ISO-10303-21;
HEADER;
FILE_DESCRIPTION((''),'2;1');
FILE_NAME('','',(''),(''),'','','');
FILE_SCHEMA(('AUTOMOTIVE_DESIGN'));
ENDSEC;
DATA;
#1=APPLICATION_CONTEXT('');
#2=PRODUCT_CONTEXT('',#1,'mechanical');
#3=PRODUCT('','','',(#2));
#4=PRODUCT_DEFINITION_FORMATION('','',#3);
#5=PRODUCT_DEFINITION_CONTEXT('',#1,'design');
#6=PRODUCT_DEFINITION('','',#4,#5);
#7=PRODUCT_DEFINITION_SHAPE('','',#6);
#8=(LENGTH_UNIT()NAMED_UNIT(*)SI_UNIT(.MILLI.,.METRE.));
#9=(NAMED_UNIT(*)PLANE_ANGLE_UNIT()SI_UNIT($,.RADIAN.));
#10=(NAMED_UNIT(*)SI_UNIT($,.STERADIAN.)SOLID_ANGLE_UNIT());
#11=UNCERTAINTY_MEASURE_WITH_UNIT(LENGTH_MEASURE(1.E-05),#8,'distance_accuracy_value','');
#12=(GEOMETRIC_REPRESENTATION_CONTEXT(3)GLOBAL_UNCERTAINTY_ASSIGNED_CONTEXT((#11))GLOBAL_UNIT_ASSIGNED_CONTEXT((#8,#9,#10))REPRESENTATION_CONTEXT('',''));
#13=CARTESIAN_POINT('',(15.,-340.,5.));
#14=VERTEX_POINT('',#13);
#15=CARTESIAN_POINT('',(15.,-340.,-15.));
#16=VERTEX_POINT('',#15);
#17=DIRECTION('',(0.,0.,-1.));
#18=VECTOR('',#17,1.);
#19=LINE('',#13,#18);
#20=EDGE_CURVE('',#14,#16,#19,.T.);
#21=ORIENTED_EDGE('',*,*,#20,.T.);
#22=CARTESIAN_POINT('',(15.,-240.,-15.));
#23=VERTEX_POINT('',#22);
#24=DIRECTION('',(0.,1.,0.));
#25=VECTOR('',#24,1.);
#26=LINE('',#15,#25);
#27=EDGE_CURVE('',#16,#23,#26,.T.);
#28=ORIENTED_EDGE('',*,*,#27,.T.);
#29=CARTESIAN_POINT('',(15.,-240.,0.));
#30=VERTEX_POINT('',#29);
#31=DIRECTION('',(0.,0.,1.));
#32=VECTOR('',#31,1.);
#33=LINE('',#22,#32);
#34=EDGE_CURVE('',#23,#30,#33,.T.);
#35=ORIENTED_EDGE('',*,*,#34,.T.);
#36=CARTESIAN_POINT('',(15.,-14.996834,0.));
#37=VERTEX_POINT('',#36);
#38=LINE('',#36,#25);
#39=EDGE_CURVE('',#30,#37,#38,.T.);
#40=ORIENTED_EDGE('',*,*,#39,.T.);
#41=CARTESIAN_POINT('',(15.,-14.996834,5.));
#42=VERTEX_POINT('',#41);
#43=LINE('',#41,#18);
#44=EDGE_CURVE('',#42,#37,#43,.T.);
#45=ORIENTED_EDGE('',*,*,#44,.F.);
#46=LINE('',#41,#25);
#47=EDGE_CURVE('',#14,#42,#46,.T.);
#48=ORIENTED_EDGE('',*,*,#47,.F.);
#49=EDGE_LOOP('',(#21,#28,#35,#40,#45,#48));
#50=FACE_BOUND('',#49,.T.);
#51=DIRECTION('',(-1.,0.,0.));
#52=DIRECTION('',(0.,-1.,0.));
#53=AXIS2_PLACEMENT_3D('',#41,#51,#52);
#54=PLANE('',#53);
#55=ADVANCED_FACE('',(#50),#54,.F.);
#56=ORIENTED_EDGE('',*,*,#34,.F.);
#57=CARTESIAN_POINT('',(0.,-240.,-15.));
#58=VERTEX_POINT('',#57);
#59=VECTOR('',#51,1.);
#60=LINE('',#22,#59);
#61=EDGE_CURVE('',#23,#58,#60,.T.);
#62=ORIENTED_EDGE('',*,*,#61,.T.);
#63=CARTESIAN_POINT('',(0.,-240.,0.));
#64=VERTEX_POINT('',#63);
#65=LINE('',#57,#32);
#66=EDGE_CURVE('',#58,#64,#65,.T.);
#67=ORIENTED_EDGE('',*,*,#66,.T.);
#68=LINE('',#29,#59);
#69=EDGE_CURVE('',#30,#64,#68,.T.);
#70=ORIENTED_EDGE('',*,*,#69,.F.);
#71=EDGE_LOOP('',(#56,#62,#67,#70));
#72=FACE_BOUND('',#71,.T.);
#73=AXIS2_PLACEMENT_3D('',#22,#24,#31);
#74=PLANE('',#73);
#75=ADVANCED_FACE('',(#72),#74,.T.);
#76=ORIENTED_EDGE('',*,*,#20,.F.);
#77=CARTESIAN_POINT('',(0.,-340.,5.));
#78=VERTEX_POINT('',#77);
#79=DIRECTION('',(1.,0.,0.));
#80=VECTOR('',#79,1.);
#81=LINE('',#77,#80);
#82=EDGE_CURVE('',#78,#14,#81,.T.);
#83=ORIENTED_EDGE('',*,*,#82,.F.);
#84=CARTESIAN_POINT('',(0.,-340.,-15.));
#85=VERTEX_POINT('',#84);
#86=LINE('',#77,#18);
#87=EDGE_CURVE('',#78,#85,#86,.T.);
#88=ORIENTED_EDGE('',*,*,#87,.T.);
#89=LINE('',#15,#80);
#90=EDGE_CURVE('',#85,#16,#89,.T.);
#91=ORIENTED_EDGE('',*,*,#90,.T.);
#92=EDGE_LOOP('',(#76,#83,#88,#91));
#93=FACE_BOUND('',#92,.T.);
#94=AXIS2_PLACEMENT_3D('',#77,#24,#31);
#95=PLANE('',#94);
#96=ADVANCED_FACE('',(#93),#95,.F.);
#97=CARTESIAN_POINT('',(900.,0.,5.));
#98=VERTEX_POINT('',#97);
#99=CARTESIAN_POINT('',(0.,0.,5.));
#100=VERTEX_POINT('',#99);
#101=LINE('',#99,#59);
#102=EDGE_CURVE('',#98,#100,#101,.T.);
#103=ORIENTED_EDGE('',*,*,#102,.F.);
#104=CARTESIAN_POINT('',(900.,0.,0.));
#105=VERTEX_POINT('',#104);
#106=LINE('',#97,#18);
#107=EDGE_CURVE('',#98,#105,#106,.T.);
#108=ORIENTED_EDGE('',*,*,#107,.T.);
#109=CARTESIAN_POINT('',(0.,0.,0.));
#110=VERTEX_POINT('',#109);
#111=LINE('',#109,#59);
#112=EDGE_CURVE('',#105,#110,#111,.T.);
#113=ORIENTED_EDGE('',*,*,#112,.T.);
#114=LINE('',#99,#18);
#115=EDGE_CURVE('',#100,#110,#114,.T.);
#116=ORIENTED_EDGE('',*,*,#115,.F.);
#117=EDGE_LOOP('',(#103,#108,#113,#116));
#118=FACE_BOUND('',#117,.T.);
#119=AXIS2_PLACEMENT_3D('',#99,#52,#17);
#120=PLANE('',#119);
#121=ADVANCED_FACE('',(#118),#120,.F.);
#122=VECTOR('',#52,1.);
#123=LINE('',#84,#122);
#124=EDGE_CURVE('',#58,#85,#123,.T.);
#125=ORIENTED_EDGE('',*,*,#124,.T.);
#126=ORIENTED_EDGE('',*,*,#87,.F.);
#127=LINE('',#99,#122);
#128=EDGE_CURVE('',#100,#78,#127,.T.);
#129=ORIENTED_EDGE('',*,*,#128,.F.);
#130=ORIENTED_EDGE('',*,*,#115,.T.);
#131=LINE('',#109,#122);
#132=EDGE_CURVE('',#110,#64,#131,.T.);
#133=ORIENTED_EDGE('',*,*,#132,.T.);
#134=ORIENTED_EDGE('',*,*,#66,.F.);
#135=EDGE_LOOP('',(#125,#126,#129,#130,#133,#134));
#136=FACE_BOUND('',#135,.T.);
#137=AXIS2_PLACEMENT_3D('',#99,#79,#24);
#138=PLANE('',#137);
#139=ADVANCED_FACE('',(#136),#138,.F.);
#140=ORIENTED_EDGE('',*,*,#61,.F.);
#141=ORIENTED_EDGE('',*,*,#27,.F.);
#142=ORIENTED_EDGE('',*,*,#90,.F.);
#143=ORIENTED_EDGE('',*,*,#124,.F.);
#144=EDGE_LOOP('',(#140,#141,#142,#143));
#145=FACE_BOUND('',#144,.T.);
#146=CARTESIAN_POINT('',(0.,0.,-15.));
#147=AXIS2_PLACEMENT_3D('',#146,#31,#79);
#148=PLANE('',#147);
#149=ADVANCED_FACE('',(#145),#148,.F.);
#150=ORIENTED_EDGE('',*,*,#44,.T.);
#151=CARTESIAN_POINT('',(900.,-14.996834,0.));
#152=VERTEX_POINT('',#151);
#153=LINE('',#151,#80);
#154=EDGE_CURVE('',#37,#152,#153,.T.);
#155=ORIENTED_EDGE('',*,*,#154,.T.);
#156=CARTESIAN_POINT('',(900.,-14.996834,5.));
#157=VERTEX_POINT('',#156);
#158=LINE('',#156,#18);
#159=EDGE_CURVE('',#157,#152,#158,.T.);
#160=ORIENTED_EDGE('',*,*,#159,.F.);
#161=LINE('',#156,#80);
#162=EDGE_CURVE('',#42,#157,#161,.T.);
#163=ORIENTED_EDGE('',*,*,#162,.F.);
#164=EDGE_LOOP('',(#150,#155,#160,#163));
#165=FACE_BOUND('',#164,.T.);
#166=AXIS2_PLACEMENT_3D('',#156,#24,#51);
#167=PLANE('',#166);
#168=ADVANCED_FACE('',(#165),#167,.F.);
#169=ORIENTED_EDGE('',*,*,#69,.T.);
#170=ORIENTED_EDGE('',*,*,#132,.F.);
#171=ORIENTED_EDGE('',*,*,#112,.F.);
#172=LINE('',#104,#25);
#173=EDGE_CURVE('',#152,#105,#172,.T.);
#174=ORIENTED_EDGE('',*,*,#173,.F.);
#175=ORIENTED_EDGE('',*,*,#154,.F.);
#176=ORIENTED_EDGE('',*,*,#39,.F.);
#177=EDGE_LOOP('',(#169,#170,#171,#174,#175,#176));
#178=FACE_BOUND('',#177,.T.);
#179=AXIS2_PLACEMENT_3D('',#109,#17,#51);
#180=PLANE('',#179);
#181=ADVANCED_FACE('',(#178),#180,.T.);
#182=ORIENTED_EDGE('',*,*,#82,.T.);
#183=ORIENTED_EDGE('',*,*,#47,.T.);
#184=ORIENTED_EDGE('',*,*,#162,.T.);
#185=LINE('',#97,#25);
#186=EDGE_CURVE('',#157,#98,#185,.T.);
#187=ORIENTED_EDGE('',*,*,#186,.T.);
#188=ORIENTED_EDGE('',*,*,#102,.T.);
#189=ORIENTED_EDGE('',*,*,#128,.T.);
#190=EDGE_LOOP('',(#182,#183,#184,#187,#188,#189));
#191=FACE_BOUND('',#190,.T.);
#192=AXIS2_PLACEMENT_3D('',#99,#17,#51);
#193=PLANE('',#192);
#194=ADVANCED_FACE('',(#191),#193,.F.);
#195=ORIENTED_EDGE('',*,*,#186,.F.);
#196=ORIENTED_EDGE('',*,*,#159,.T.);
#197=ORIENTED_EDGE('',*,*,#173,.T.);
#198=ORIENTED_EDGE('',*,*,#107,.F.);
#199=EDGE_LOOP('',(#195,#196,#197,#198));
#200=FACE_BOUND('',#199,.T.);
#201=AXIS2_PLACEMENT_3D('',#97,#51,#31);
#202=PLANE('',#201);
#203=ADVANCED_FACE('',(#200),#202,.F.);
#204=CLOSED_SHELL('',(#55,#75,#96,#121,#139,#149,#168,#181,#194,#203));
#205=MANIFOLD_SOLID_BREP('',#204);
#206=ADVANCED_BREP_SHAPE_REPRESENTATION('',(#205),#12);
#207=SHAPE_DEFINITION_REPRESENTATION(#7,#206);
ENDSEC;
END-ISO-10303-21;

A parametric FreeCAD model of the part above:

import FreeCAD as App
import Part
import Sketcher
from FreeCAD import Vector
Q = App.Units.Quantity


def add_polygon(sketch, points):
    """Adds a closed chain of lines whose ends are joined by coincident constraints."""
    first, n = sketch.GeometryCount, len(points)
    for a, b in zip(points, points[1:] + points[:1]):
        sketch.addGeometry(Part.LineSegment(App.Vector(*a, 0), App.Vector(*b, 0)), False)
    for i in range(n):
        sketch.addConstraint(Sketcher.Constraint("Coincident", first + i, 2, first + (i + 1) % n, 1))

doc = App.newDocument("Part")
body = doc.addObject("PartDesign::Body", "Body")

# Sketch on XY plane
sketch1 = body.newObject("Sketcher::SketchObject", "Sketch")
sketch1.AttachmentSupport = (doc.getObject("XY_Plane"), [""])
sketch1.MapMode = "FlatFace"
add_polygon(sketch1, [(0, 0), (0, -340), (15, -340), (15, -15), (900, -15), (900, 0)])  # lines 0-5
sketch1.addConstraint([
    Sketcher.Constraint("Vertical", 0),
    Sketcher.Constraint("Horizontal", 1),
    Sketcher.Constraint("Vertical", 2),
    Sketcher.Constraint("Horizontal", 3),
    Sketcher.Constraint("Vertical", 4),
    Sketcher.Constraint("Horizontal", 5),
    Sketcher.Constraint("Coincident", 5, 2, -1, 1),
    Sketcher.Constraint("DistanceX", 1, 1, 1, 2, Q("15 mm")),
    Sketcher.Constraint("DistanceX", 3, 1, 3, 2, Q("885 mm")),
    Sketcher.Constraint("DistanceY", 0, 2, 0, 1, Q("340 mm")),
    Sketcher.Constraint("DistanceY", 2, 1, 2, 2, Q("325.003166 mm")),
])
pad1 = body.newObject("PartDesign::Pad", "Pad")
pad1.Profile = sketch1
pad1.Length = 5

# Sketch on XY plane
sketch2 = body.newObject("Sketcher::SketchObject", "Sketch001")
sketch2.AttachmentSupport = (doc.getObject("XY_Plane"), [""])
sketch2.MapMode = "FlatFace"
add_polygon(sketch2, [(0, -240), (0, -340), (15, -340), (15, -240)])  # lines 0-3
sketch2.addConstraint([
    Sketcher.Constraint("Vertical", 0),
    Sketcher.Constraint("Horizontal", 1),
    Sketcher.Constraint("Vertical", 2),
    Sketcher.Constraint("Horizontal", 3),
    Sketcher.Constraint("PointOnObject", 0, 2, -2),
    Sketcher.Constraint("DistanceX", 1, 1, 1, 2, Q("15 mm")),
    Sketcher.Constraint("DistanceY", 0, 2, 0, 1, Q("100 mm")),
    Sketcher.Constraint("DistanceY", 0, 2, -1, 1, Q("340 mm")),
])
pad2 = body.newObject("PartDesign::Pad", "Pad001")
pad2.Profile = sketch2
pad2.Length = 15
pad2.Reversed = True

doc.recompute()
